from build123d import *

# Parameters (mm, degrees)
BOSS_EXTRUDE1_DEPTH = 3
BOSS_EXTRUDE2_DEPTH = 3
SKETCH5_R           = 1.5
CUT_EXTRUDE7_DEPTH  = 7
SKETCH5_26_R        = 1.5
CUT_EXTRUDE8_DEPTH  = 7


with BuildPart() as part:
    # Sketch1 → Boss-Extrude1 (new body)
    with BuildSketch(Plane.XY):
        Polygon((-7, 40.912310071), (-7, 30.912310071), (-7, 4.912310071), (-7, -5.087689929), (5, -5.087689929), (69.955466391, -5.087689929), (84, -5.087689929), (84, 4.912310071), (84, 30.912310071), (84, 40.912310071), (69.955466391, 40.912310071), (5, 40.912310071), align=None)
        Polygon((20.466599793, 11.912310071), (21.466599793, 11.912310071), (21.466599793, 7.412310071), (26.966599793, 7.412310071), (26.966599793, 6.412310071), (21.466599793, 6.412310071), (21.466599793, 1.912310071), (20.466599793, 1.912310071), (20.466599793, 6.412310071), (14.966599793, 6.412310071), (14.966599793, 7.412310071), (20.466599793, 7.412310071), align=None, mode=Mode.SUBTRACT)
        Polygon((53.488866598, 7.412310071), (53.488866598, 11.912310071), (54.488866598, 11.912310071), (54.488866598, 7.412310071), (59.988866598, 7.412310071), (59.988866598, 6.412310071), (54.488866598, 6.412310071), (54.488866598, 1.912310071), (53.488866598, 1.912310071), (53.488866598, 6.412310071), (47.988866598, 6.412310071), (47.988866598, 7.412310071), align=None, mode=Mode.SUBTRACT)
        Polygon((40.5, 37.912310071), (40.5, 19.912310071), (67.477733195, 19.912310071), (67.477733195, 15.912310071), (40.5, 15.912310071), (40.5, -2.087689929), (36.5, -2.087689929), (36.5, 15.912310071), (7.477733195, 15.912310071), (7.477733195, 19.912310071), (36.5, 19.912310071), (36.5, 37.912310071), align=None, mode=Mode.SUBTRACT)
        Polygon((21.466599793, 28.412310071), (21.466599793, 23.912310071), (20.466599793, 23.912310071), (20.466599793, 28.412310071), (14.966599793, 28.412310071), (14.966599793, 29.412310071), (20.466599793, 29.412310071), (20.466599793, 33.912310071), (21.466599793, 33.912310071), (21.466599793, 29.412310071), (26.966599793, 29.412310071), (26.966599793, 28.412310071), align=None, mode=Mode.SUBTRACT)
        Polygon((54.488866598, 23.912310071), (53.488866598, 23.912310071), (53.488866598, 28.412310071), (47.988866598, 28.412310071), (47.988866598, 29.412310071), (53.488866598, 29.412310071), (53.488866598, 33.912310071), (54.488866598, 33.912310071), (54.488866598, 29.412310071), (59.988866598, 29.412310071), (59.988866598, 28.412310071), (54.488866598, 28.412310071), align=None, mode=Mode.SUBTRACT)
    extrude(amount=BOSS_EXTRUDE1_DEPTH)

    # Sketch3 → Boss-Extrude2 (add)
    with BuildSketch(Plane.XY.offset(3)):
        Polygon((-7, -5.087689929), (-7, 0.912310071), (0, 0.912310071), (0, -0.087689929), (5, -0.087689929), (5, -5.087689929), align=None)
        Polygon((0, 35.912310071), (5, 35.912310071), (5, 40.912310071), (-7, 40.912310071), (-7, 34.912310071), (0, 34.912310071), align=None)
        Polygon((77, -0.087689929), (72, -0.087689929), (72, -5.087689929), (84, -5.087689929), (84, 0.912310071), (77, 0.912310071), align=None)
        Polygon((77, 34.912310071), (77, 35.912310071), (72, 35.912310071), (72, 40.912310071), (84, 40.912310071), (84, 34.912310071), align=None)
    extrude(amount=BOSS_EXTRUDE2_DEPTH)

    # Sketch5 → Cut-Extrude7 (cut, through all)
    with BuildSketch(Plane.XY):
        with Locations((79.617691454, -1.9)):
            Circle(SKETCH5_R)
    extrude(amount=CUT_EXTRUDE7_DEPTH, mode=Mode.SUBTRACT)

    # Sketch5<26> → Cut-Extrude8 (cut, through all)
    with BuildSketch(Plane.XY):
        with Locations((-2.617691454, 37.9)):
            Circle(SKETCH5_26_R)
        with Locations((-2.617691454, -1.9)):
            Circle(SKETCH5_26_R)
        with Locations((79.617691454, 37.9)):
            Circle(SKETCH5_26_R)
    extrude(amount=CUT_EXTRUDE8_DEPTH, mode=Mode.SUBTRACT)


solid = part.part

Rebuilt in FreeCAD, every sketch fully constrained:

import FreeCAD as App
import Part
import Sketcher

V = App.Vector

doc = App.newDocument("Part")
body = doc.addObject("PartDesign::Body", "Body")

sketch1 = body.newObject("Sketcher::SketchObject", "Sketch")
sketch1.AttachmentSupport = (doc.getObject("XY_Plane"), [""])
sketch1.MapMode = "FlatFace"
sketch1.addGeometry([
    Part.LineSegment(V(-7, 40.9, 0), V(-7, -5.1, 0)),
    Part.LineSegment(V(-7, -5.1, 0), V(84, -5.1, 0)),
    Part.LineSegment(V(84, -5.1, 0), V(84, 40.9, 0)),
    Part.LineSegment(V(84, 40.9, 0), V(-7, 40.9, 0)),
    Part.LineSegment(V(20.5, 7.4, 0), V(20.5, 11.9, 0)),
    Part.LineSegment(V(20.5, 11.9, 0), V(21.5, 11.9, 0)),
    Part.LineSegment(V(21.5, 11.9, 0), V(21.5, 7.4, 0)),
    Part.LineSegment(V(21.5, 7.4, 0), V(27, 7.4, 0)),
    Part.LineSegment(V(27, 7.4, 0), V(27, 6.4, 0)),
    Part.LineSegment(V(27, 6.4, 0), V(21.5, 6.4, 0)),
    Part.LineSegment(V(21.5, 6.4, 0), V(21.5, 1.9, 0)),
    Part.LineSegment(V(21.5, 1.9, 0), V(20.5, 1.9, 0)),
    Part.LineSegment(V(20.5, 1.9, 0), V(20.5, 6.4, 0)),
    Part.LineSegment(V(20.5, 6.4, 0), V(15, 6.4, 0)),
    Part.LineSegment(V(15, 6.4, 0), V(15, 7.4, 0)),
    Part.LineSegment(V(15, 7.4, 0), V(20.5, 7.4, 0)),
    Part.LineSegment(V(48, 7.4, 0), V(53.5, 7.4, 0)),
    Part.LineSegment(V(53.5, 7.4, 0), V(53.5, 11.9, 0)),
    Part.LineSegment(V(53.5, 11.9, 0), V(54.5, 11.9, 0)),
    Part.LineSegment(V(54.5, 11.9, 0), V(54.5, 7.4, 0)),
    Part.LineSegment(V(54.5, 7.4, 0), V(60, 7.4, 0)),
    Part.LineSegment(V(60, 7.4, 0), V(60, 6.4, 0)),
    Part.LineSegment(V(60, 6.4, 0), V(54.5, 6.4, 0)),
    Part.LineSegment(V(54.5, 6.4, 0), V(54.5, 1.9, 0)),
    Part.LineSegment(V(54.5, 1.9, 0), V(53.5, 1.9, 0)),
    Part.LineSegment(V(53.5, 1.9, 0), V(53.5, 6.4, 0)),
    Part.LineSegment(V(53.5, 6.4, 0), V(48, 6.4, 0)),
    Part.LineSegment(V(48, 6.4, 0), V(48, 7.4, 0)),
    Part.LineSegment(V(27, 28.4, 0), V(21.5, 28.4, 0)),
    Part.LineSegment(V(21.5, 28.4, 0), V(21.5, 23.9, 0)),
    Part.LineSegment(V(21.5, 23.9, 0), V(20.5, 23.9, 0)),
    Part.LineSegment(V(20.5, 23.9, 0), V(20.5, 28.4, 0)),
    Part.LineSegment(V(20.5, 28.4, 0), V(15, 28.4, 0)),
    Part.LineSegment(V(15, 28.4, 0), V(15, 29.4, 0)),
    Part.LineSegment(V(15, 29.4, 0), V(20.5, 29.4, 0)),
    Part.LineSegment(V(20.5, 29.4, 0), V(20.5, 33.9, 0)),
    Part.LineSegment(V(20.5, 33.9, 0), V(21.5, 33.9, 0)),
    Part.LineSegment(V(21.5, 33.9, 0), V(21.5, 29.4, 0)),
    Part.LineSegment(V(21.5, 29.4, 0), V(27, 29.4, 0)),
    Part.LineSegment(V(27, 29.4, 0), V(27, 28.4, 0)),
    Part.LineSegment(V(36.5, 37.9, 0), V(40.5, 37.9, 0)),
    Part.LineSegment(V(40.5, 37.9, 0), V(40.5, 19.9, 0)),
    Part.LineSegment(V(40.5, 19.9, 0), V(67.5, 19.9, 0)),
    Part.LineSegment(V(67.5, 19.9, 0), V(67.5, 15.9, 0)),
    Part.LineSegment(V(67.5, 15.9, 0), V(40.5, 15.9, 0)),
    Part.LineSegment(V(40.5, 15.9, 0), V(40.5, -2.1, 0)),
    Part.LineSegment(V(40.5, -2.1, 0), V(36.5, -2.1, 0)),
    Part.LineSegment(V(36.5, -2.1, 0), V(36.5, 15.9, 0)),
    Part.LineSegment(V(36.5, 15.9, 0), V(7.5, 15.9, 0)),
    Part.LineSegment(V(7.5, 15.9, 0), V(7.5, 19.9, 0)),
    Part.LineSegment(V(7.5, 19.9, 0), V(36.5, 19.9, 0)),
    Part.LineSegment(V(36.5, 19.9, 0), V(36.5, 37.9, 0)),
    Part.LineSegment(V(54.5, 28.4, 0), V(54.5, 23.9, 0)),
    Part.LineSegment(V(54.5, 23.9, 0), V(53.5, 23.9, 0)),
    Part.LineSegment(V(53.5, 23.9, 0), V(53.5, 28.4, 0)),
    Part.LineSegment(V(53.5, 28.4, 0), V(48, 28.4, 0)),
    Part.LineSegment(V(48, 28.4, 0), V(48, 29.4, 0)),
    Part.LineSegment(V(48, 29.4, 0), V(53.5, 29.4, 0)),
    Part.LineSegment(V(53.5, 29.4, 0), V(53.5, 33.9, 0)),
    Part.LineSegment(V(53.5, 33.9, 0), V(54.5, 33.9, 0)),
    Part.LineSegment(V(54.5, 33.9, 0), V(54.5, 29.4, 0)),
    Part.LineSegment(V(54.5, 29.4, 0), V(60, 29.4, 0)),
    Part.LineSegment(V(60, 29.4, 0), V(60, 28.4, 0)),
    Part.LineSegment(V(60, 28.4, 0), V(54.5, 28.4, 0)),
], False)
sketch1.addConstraint([
    Sketcher.Constraint("Coincident", 0, 2, 1, 1),
    Sketcher.Constraint("Coincident", 1, 2, 2, 1),
    Sketcher.Constraint("Coincident", 2, 2, 3, 1),
    Sketcher.Constraint("Coincident", 3, 2, 0, 1),
    Sketcher.Constraint("Coincident", 4, 2, 5, 1),
    Sketcher.Constraint("Coincident", 5, 2, 6, 1),
    Sketcher.Constraint("Coincident", 6, 2, 7, 1),
    Sketcher.Constraint("Coincident", 7, 2, 8, 1),
    Sketcher.Constraint("Coincident", 8, 2, 9, 1),
    Sketcher.Constraint("Coincident", 9, 2, 10, 1),
    Sketcher.Constraint("Coincident", 10, 2, 11, 1),
    Sketcher.Constraint("Coincident", 11, 2, 12, 1),
    Sketcher.Constraint("Coincident", 12, 2, 13, 1),
    Sketcher.Constraint("Coincident", 13, 2, 14, 1),
    Sketcher.Constraint("Coincident", 14, 2, 15, 1),
    Sketcher.Constraint("Coincident", 15, 2, 4, 1),
    Sketcher.Constraint("Coincident", 16, 2, 17, 1),
    Sketcher.Constraint("Coincident", 17, 2, 18, 1),
    Sketcher.Constraint("Coincident", 18, 2, 19, 1),
    Sketcher.Constraint("Coincident", 19, 2, 20, 1),
    Sketcher.Constraint("Coincident", 20, 2, 21, 1),
    Sketcher.Constraint("Coincident", 21, 2, 22, 1),
    Sketcher.Constraint("Coincident", 22, 2, 23, 1),
    Sketcher.Constraint("Coincident", 23, 2, 24, 1),
    Sketcher.Constraint("Coincident", 24, 2, 25, 1),
    Sketcher.Constraint("Coincident", 25, 2, 26, 1),
    Sketcher.Constraint("Coincident", 26, 2, 27, 1),
    Sketcher.Constraint("Coincident", 27, 2, 16, 1),
    Sketcher.Constraint("Coincident", 28, 2, 29, 1),
    Sketcher.Constraint("Coincident", 29, 2, 30, 1),
    Sketcher.Constraint("Coincident", 30, 2, 31, 1),
    Sketcher.Constraint("Coincident", 31, 2, 32, 1),
    Sketcher.Constraint("Coincident", 32, 2, 33, 1),
    Sketcher.Constraint("Coincident", 33, 2, 34, 1),
    Sketcher.Constraint("Coincident", 34, 2, 35, 1),
    Sketcher.Constraint("Coincident", 35, 2, 36, 1),
    Sketcher.Constraint("Coincident", 36, 2, 37, 1),
    Sketcher.Constraint("Coincident", 37, 2, 38, 1),
    Sketcher.Constraint("Coincident", 38, 2, 39, 1),
    Sketcher.Constraint("Coincident", 39, 2, 28, 1),
    Sketcher.Constraint("Coincident", 40, 2, 41, 1),
    Sketcher.Constraint("Coincident", 41, 2, 42, 1),
    Sketcher.Constraint("Coincident", 42, 2, 43, 1),
    Sketcher.Constraint("Coincident", 43, 2, 44, 1),
    Sketcher.Constraint("Coincident", 44, 2, 45, 1),
    Sketcher.Constraint("Coincident", 45, 2, 46, 1),
    Sketcher.Constraint("Coincident", 46, 2, 47, 1),
    Sketcher.Constraint("Coincident", 47, 2, 48, 1),
    Sketcher.Constraint("Coincident", 48, 2, 49, 1),
    Sketcher.Constraint("Coincident", 49, 2, 50, 1),
    Sketcher.Constraint("Coincident", 50, 2, 51, 1),
    Sketcher.Constraint("Coincident", 51, 2, 40, 1),
    Sketcher.Constraint("Coincident", 52, 2, 53, 1),
    Sketcher.Constraint("Coincident", 53, 2, 54, 1),
    Sketcher.Constraint("Coincident", 54, 2, 55, 1),
    Sketcher.Constraint("Coincident", 55, 2, 56, 1),
    Sketcher.Constraint("Coincident", 56, 2, 57, 1),
    Sketcher.Constraint("Coincident", 57, 2, 58, 1),
    Sketcher.Constraint("Coincident", 58, 2, 59, 1),
    Sketcher.Constraint("Coincident", 59, 2, 60, 1),
    Sketcher.Constraint("Coincident", 60, 2, 61, 1),
    Sketcher.Constraint("Coincident", 61, 2, 62, 1),
    Sketcher.Constraint("Coincident", 62, 2, 63, 1),
    Sketcher.Constraint("Coincident", 63, 2, 52, 1),
    Sketcher.Constraint("Vertical", 0),
    Sketcher.Constraint("Horizontal", 1),
    Sketcher.Constraint("Vertical", 2),
    Sketcher.Constraint("Horizontal", 3),
    Sketcher.Constraint("Vertical", 4),
    Sketcher.Constraint("Horizontal", 5),
    Sketcher.Constraint("Vertical", 6),
    Sketcher.Constraint("Horizontal", 7),
    Sketcher.Constraint("Vertical", 8),
    Sketcher.Constraint("Horizontal", 9),
    Sketcher.Constraint("Vertical", 10),
    Sketcher.Constraint("Horizontal", 11),
    Sketcher.Constraint("Vertical", 12),
    Sketcher.Constraint("Horizontal", 13),
    Sketcher.Constraint("Vertical", 14),
    Sketcher.Constraint("Horizontal", 15),
    Sketcher.Constraint("Horizontal", 16),
    Sketcher.Constraint("Vertical", 17),
    Sketcher.Constraint("Horizontal", 18),
    Sketcher.Constraint("Vertical", 19),
    Sketcher.Constraint("Horizontal", 20),
    Sketcher.Constraint("Vertical", 21),
    Sketcher.Constraint("Horizontal", 22),
    Sketcher.Constraint("Vertical", 23),
    Sketcher.Constraint("Horizontal", 24),
    Sketcher.Constraint("Vertical", 25),
    Sketcher.Constraint("Horizontal", 26),
    Sketcher.Constraint("Vertical", 27),
    Sketcher.Constraint("Horizontal", 28),
    Sketcher.Constraint("Vertical", 29),
    Sketcher.Constraint("Horizontal", 30),
    Sketcher.Constraint("Vertical", 31),
    Sketcher.Constraint("Horizontal", 32),
    Sketcher.Constraint("Vertical", 33),
    Sketcher.Constraint("Horizontal", 34),
    Sketcher.Constraint("Vertical", 35),
    Sketcher.Constraint("Horizontal", 36),
    Sketcher.Constraint("Vertical", 37),
    Sketcher.Constraint("Horizontal", 38),
    Sketcher.Constraint("Vertical", 39),
    Sketcher.Constraint("Horizontal", 40),
    Sketcher.Constraint("Vertical", 41),
    Sketcher.Constraint("Horizontal", 42),
    Sketcher.Constraint("Vertical", 43),
    Sketcher.Constraint("Horizontal", 44),
    Sketcher.Constraint("Vertical", 45),
    Sketcher.Constraint("Horizontal", 46),
    Sketcher.Constraint("Vertical", 47),
    Sketcher.Constraint("Horizontal", 48),
    Sketcher.Constraint("Vertical", 49),
    Sketcher.Constraint("Horizontal", 50),
    Sketcher.Constraint("Vertical", 51),
    Sketcher.Constraint("Vertical", 52),
    Sketcher.Constraint("Horizontal", 53),
    Sketcher.Constraint("Vertical", 54),
    Sketcher.Constraint("Horizontal", 55),
    Sketcher.Constraint("Vertical", 56),
    Sketcher.Constraint("Horizontal", 57),
    Sketcher.Constraint("Vertical", 58),
    Sketcher.Constraint("Horizontal", 59),
    Sketcher.Constraint("Vertical", 60),
    Sketcher.Constraint("Horizontal", 61),
    Sketcher.Constraint("Vertical", 62),
    Sketcher.Constraint("Horizontal", 63),
    Sketcher.Constraint("Horizontal", 9, 2, 12, 2),
    Sketcher.Constraint("Horizontal", 7, 2, 14, 2),
    Sketcher.Constraint("Horizontal", 15, 2, 16, 2),
    Sketcher.Constraint("Horizontal", 5, 2, 17, 2),
    Sketcher.Constraint("Horizontal", 16, 2, 19, 2),
    Sketcher.Constraint("Horizontal", 13, 2, 21, 2),
    Sketcher.Constraint("Horizontal", 11, 2, 23, 2),
    Sketcher.Constraint("Horizontal", 22, 2, 25, 2),
    Sketcher.Constraint("Horizontal", 28, 2, 31, 2),
    Sketcher.Constraint("Horizontal", 34, 2, 37, 2),
    Sketcher.Constraint("Horizontal", 44, 2, 47, 2),
    Sketcher.Constraint("Horizontal", 42, 2, 49, 2),
    Sketcher.Constraint("Horizontal", 30, 2, 52, 2),
    Sketcher.Constraint("Horizontal", 39, 2, 54, 2),
    Sketcher.Constraint("Horizontal", 38, 2, 56, 2),
    Sketcher.Constraint("Horizontal", 36, 2, 58, 2),
    Sketcher.Constraint("Horizontal", 57, 2, 60, 2),
    Sketcher.Constraint("Horizontal", 55, 2, 62, 2),
    Sketcher.Constraint("Vertical", 6, 2, 9, 2),
    Sketcher.Constraint("Vertical", 4, 2, 11, 2),
    Sketcher.Constraint("Vertical", 19, 2, 22, 2),
    Sketcher.Constraint("Vertical", 17, 2, 24, 2),
    Sketcher.Constraint("Vertical", 10, 2, 28, 2),
    Sketcher.Constraint("Vertical", 15, 2, 30, 2),
    Sketcher.Constraint("Vertical", 14, 2, 32, 2),
    Sketcher.Constraint("Vertical", 31, 2, 34, 2),
    Sketcher.Constraint("Vertical", 29, 2, 36, 2),
    Sketcher.Constraint("Vertical", 8, 2, 38, 2),
    Sketcher.Constraint("Vertical", 41, 2, 44, 2),
    Sketcher.Constraint("Vertical", 47, 2, 50, 2),
    Sketcher.Constraint("Vertical", 23, 2, 52, 2),
    Sketcher.Constraint("Vertical", 25, 2, 53, 2),
    Sketcher.Constraint("Vertical", 27, 2, 55, 2),
    Sketcher.Constraint("Vertical", 54, 2, 57, 2),
    Sketcher.Constraint("Vertical", 52, 2, 59, 2),
    Sketcher.Constraint("Vertical", 21, 2, 61, 2),
    Sketcher.Constraint("Equal", 9, 13),
    Sketcher.Constraint("Equal", 15, 16),
    Sketcher.Constraint("Equal", 11, 18),
    Sketcher.Constraint("Equal", 16, 20),
    Sketcher.Constraint("Equal", 59, 8),
    Sketcher.Constraint("Equal", 6, 10),
    Sketcher.Constraint("Equal", 25, 29),
    Sketcher.Constraint("Equal", 27, 33),
    Sketcher.Constraint("Equal", 31, 35),
    Sketcher.Constraint("Equal", 46, 43),
    Sketcher.Constraint("Equal", 41, 45),
    Sketcher.Constraint("DistanceX", 1, 1, 1, 2, 91.0),
    Sketcher.Constraint("DistanceX", 5, 1, 5, 2, 1.0),
    Sketcher.Constraint("DistanceX", 40, 1, 40, 2, 4.0),
    Sketcher.Constraint("DistanceY", 0, 2, 0, 1, 46.0),
    Sketcher.Constraint("DistanceY", 41, 2, 41, 1, 18.0),
    Sketcher.Constraint("DistanceX", 7, 1, 7, 2, 5.5),
    Sketcher.Constraint("DistanceY", 4, 1, 4, 2, 4.5),
    Sketcher.Constraint("DistanceX", 0, 2, -1, 1, 7.0),
    Sketcher.Constraint("DistanceX", -1, 1, 40, 2, 40.5),
    Sketcher.Constraint("DistanceX", -1, 1, 4, 2, 20.4666),
    Sketcher.Constraint("DistanceX", 42, 1, 42, 2, 26.977733),
    Sketcher.Constraint("DistanceX", 48, 2, 48, 1, 29.022267),
    Sketcher.Constraint("DistanceY", 0, 2, -1, 1, 5.08769),
    Sketcher.Constraint("DistanceY", -1, 1, 4, 2, 11.91231),
    Sketcher.Constraint("DistanceY", -1, 1, 28, 2, 28.41231),
    Sketcher.Constraint("DistanceY", -1, 1, 40, 2, 37.91231),
    Sketcher.Constraint("DistanceX", -1, 1, 16, 2, 53.488867),
])
pad1 = body.newObject("PartDesign::Pad", "Pad")
pad1.Profile = sketch1
pad1.Length = 3

sketch2 = body.newObject("Sketcher::SketchObject", "Sketch001")
sketch2.AttachmentSupport = (doc.getObject("XY_Plane"), [""])
sketch2.MapMode = "FlatFace"
sketch2.AttachmentOffset = App.Placement(V(0, 0, 3), App.Rotation())
sketch2.addGeometry([
    Part.LineSegment(V(-7, 0.9, 0), V(-7, -5.1, 0)),
    Part.LineSegment(V(-7, -5.1, 0), V(5, -5.1, 0)),
    Part.LineSegment(V(5, -5.1, 0), V(5, -0.1, 0)),
    Part.LineSegment(V(5, -0.1, 0), V(0, -0.1, 0)),
    Part.LineSegment(V(0, -0.1, 0), V(0, 0.9, 0)),
    Part.LineSegment(V(0, 0.9, 0), V(-7, 0.9, 0)),
    Part.LineSegment(V(0, 35.9, 0), V(5, 35.9, 0)),
    Part.LineSegment(V(5, 35.9, 0), V(5, 40.9, 0)),
    Part.LineSegment(V(5, 40.9, 0), V(-7, 40.9, 0)),
    Part.LineSegment(V(-7, 40.9, 0), V(-7, 34.9, 0)),
    Part.LineSegment(V(-7, 34.9, 0), V(0, 34.9, 0)),
    Part.LineSegment(V(0, 34.9, 0), V(0, 35.9, 0)),
    Part.LineSegment(V(77, -0.1, 0), V(72, -0.1, 0)),
    Part.LineSegment(V(72, -0.1, 0), V(72, -5.1, 0)),
    Part.LineSegment(V(72, -5.1, 0), V(84, -5.1, 0)),
    Part.LineSegment(V(84, -5.1, 0), V(84, 0.9, 0)),
    Part.LineSegment(V(84, 0.9, 0), V(77, 0.9, 0)),
    Part.LineSegment(V(77, 0.9, 0), V(77, -0.1, 0)),
    Part.LineSegment(V(77, 35.9, 0), V(77, 34.9, 0)),
    Part.LineSegment(V(77, 34.9, 0), V(84, 34.9, 0)),
    Part.LineSegment(V(84, 34.9, 0), V(84, 40.9, 0)),
    Part.LineSegment(V(84, 40.9, 0), V(72, 40.9, 0)),
    Part.LineSegment(V(72, 40.9, 0), V(72, 35.9, 0)),
    Part.LineSegment(V(72, 35.9, 0), V(77, 35.9, 0)),
], False)
sketch2.addConstraint([
    Sketcher.Constraint("Coincident", 0, 2, 1, 1),
    Sketcher.Constraint("Coincident", 1, 2, 2, 1),
    Sketcher.Constraint("Coincident", 2, 2, 3, 1),
    Sketcher.Constraint("Coincident", 3, 2, 4, 1),
    Sketcher.Constraint("Coincident", 4, 2, 5, 1),
    Sketcher.Constraint("Coincident", 5, 2, 0, 1),
    Sketcher.Constraint("Coincident", 6, 2, 7, 1),
    Sketcher.Constraint("Coincident", 7, 2, 8, 1),
    Sketcher.Constraint("Coincident", 8, 2, 9, 1),
    Sketcher.Constraint("Coincident", 9, 2, 10, 1),
    Sketcher.Constraint("Coincident", 10, 2, 11, 1),
    Sketcher.Constraint("Coincident", 11, 2, 6, 1),
    Sketcher.Constraint("Coincident", 12, 2, 13, 1),
    Sketcher.Constraint("Coincident", 13, 2, 14, 1),
    Sketcher.Constraint("Coincident", 14, 2, 15, 1),
    Sketcher.Constraint("Coincident", 15, 2, 16, 1),
    Sketcher.Constraint("Coincident", 16, 2, 17, 1),
    Sketcher.Constraint("Coincident", 17, 2, 12, 1),
    Sketcher.Constraint("Coincident", 18, 2, 19, 1),
    Sketcher.Constraint("Coincident", 19, 2, 20, 1),
    Sketcher.Constraint("Coincident", 20, 2, 21, 1),
    Sketcher.Constraint("Coincident", 21, 2, 22, 1),
    Sketcher.Constraint("Coincident", 22, 2, 23, 1),
    Sketcher.Constraint("Coincident", 23, 2, 18, 1),
    Sketcher.Constraint("Vertical", 0),
    Sketcher.Constraint("Horizontal", 1),
    Sketcher.Constraint("Vertical", 2),
    Sketcher.Constraint("Horizontal", 3),
    Sketcher.Constraint("Vertical", 4),
    Sketcher.Constraint("Horizontal", 5),
    Sketcher.Constraint("Horizontal", 6),
    Sketcher.Constraint("Vertical", 7),
    Sketcher.Constraint("Horizontal", 8),
    Sketcher.Constraint("Vertical", 9),
    Sketcher.Constraint("Horizontal", 10),
    Sketcher.Constraint("Vertical", 11),
    Sketcher.Constraint("Horizontal", 12),
    Sketcher.Constraint("Vertical", 13),
    Sketcher.Constraint("Horizontal", 14),
    Sketcher.Constraint("Vertical", 15),
    Sketcher.Constraint("Horizontal", 16),
    Sketcher.Constraint("Vertical", 17),
    Sketcher.Constraint("Vertical", 18),
    Sketcher.Constraint("Horizontal", 19),
    Sketcher.Constraint("Vertical", 20),
    Sketcher.Constraint("Horizontal", 21),
    Sketcher.Constraint("Vertical", 22),
    Sketcher.Constraint("Horizontal", 23),
    Sketcher.Constraint("PointOnObject", 3, 2, -2),
    Sketcher.Constraint("PointOnObject", 10, 2, -2),
    Sketcher.Constraint("Horizontal", 3, 2, 12, 2),
    Sketcher.Constraint("Horizontal", 1, 2, 13, 2),
    Sketcher.Constraint("Horizontal", 5, 2, 15, 2),
    Sketcher.Constraint("Horizontal", 10, 2, 18, 2),
    Sketcher.Constraint("Horizontal", 8, 2, 20, 2),
    Sketcher.Constraint("Horizontal", 11, 2, 22, 2),
    Sketcher.Constraint("Vertical", 2, 2, 6, 2),
    Sketcher.Constraint("Vertical", 5, 2, 8, 2),
    Sketcher.Constraint("Vertical", 17, 2, 18, 2),
    Sketcher.Constraint("Vertical", 15, 2, 19, 2),
    Sketcher.Constraint("Vertical", 13, 2, 21, 2),
    Sketcher.Constraint("Equal", 6, 12),
    Sketcher.Constraint("Equal", 8, 14),
    Sketcher.Constraint("Equal", 23, 2),
    Sketcher.Constraint("Equal", 2, 7),
    Sketcher.Constraint("Equal", 0, 9),
    Sketcher.Constraint("DistanceX", 1, 1, 1, 2, 12.0),
    Sketcher.Constraint("DistanceX", 3, 2, 3, 1, 5.0),
    Sketcher.Constraint("DistanceY", 0, 2, 0, 1, 6.0),
    Sketcher.Constraint("DistanceX", -1, 1, 12, 2, 72.0),
    Sketcher.Constraint("DistanceY", 4, 2, 6, 2, 35.0),
    Sketcher.Constraint("DistanceY", 0, 2, -1, 1, 5.08769),
])
pad2 = body.newObject("PartDesign::Pad", "Pad001")
pad2.Profile = sketch2
pad2.Length = 3

sketch3 = body.newObject("Sketcher::SketchObject", "Sketch002")
sketch3.AttachmentSupport = (doc.getObject("XY_Plane"), [""])
sketch3.MapMode = "FlatFace"
sketch3.addGeometry(Part.Circle(V(79.6, -1.9, 0), V(0, 0, 1), 1.5), False)
sketch3.addConstraint([
    Sketcher.Constraint("Diameter", 0, 3.0),
    Sketcher.Constraint("DistanceY", 0, 3, -1, 1, 1.9),
    Sketcher.Constraint("DistanceX", -1, 1, 0, 3, 79.617691),
])
pocket1 = body.newObject("PartDesign::Pocket", "Pocket")
pocket1.Profile = sketch3
pocket1.Type = "ThroughAll"
pocket1.Reversed = True

sketch4 = body.newObject("Sketcher::SketchObject", "Sketch003")
sketch4.AttachmentSupport = (doc.getObject("XY_Plane"), [""])
sketch4.MapMode = "FlatFace"
sketch4.addGeometry([
    Part.Circle(V(-2.6, 37.9, 0), V(0, 0, 1), 1.5),
    Part.Circle(V(-2.6, -1.9, 0), V(0, 0, 1), 1.5),
    Part.Circle(V(79.6, 37.9, 0), V(0, 0, 1), 1.5),
], False)
sketch4.addConstraint([
    Sketcher.Constraint("Equal", 0, 1),
    Sketcher.Constraint("Equal", 1, 2),
    Sketcher.Constraint("Horizontal", 0, 3, 2, 3),
    Sketcher.Constraint("Vertical", 0, 3, 1, 3),
    Sketcher.Constraint("Diameter", 0, 3.0),
    Sketcher.Constraint("DistanceY", -1, 1, 0, 3, 37.9),
    Sketcher.Constraint("DistanceY", 1, 3, -1, 1, 1.9),
    Sketcher.Constraint("DistanceX", 0, 3, -1, 1, 2.617691),
    Sketcher.Constraint("DistanceX", -1, 1, 2, 3, 79.617691),
])
pocket2 = body.newObject("PartDesign::Pocket", "Pocket001")
pocket2.Profile = sketch4
pocket2.Type = "ThroughAll"
pocket2.Reversed = True

doc.recompute()
